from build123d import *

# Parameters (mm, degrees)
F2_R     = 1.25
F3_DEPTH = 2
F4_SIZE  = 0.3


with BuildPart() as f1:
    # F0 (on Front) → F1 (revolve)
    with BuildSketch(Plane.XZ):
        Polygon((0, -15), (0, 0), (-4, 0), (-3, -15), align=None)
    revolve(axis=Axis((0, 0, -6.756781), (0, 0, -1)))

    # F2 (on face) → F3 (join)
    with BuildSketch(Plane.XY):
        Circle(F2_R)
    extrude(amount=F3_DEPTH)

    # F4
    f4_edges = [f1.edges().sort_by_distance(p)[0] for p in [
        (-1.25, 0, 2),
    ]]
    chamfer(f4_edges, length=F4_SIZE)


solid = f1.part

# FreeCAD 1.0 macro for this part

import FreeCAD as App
import Part
import Sketcher
from FreeCAD import Vector
Q = App.Units.Quantity


def edges_at(feature, points):
    """Names of the edges that pass closest to the given points."""
    edges = feature.Shape.Edges
    near = lambda p: min(range(len(edges)), key=lambda i: edges[i].distToShape(Part.Vertex(*p))[0])
    return sorted({f"Edge{near(p) + 1}" for p in points})


def add_polygon(sketch, points):
    """Adds a closed chain of lines whose ends are joined by coincident constraints."""
    first, n = sketch.GeometryCount, len(points)
    for a, b in zip(points, points[1:] + points[:1]):
        sketch.addGeometry(Part.LineSegment(App.Vector(*a, 0), App.Vector(*b, 0)), False)
    for i in range(n):
        sketch.addConstraint(Sketcher.Constraint("Coincident", first + i, 2, first + (i + 1) % n, 1))

doc = App.newDocument("Part")
params = doc.addObject("Spreadsheet::Sheet", "Params")
for row, (alias, value) in enumerate([
    ("sketch1_width", "4 mm"),
    ("sketch1_width2", "3 mm"),
    ("sketch1_height", "15 mm"),
    ("revolution_angle", "360 deg"),
    ("sketch2_diameter", "2.5 mm"),
    ("pad1_length", "2 mm"),
    ("chamfer_size", "0.3 mm"),
], start=1):
    params.set(f"A{row}", alias)
    params.set(f"B{row}", "=" + value)
    params.setAlias(f"B{row}", alias)

body = doc.addObject("PartDesign::Body", "Body")

# Sketch on XZ plane
sketch1 = body.newObject("Sketcher::SketchObject", "Sketch")
sketch1.AttachmentSupport = (doc.getObject("XZ_Plane"), [""])
sketch1.MapMode = "FlatFace"
add_polygon(sketch1, [(0, -15), (0, 0), (-4, 0), (-3, -15)])  # lines 0-3
sketch1.addConstraint(Sketcher.Constraint("Vertical", 0))
sketch1.addConstraint(Sketcher.Constraint("Horizontal", 1))
sketch1.addConstraint(Sketcher.Constraint("Horizontal", 3))
sketch1.addConstraint(Sketcher.Constraint("Coincident", 0, 2, -1, 1))
sketch1.addConstraint(Sketcher.Constraint("DistanceX", 1, 2, 1, 1, Q("4 mm")))
sketch1.addConstraint(Sketcher.Constraint("DistanceX", 3, 1, 3, 2, Q("3 mm")))
sketch1.addConstraint(Sketcher.Constraint("DistanceY", 0, 1, 0, 2, Q("15 mm")))
sketch1.setExpression("Constraints[8]", "Params.sketch1_width")
sketch1.setExpression("Constraints[9]", "Params.sketch1_width2")
sketch1.setExpression("Constraints[10]", "Params.sketch1_height")
revolution = body.newObject("PartDesign::Revolution", "Revolution")
revolution.Profile = sketch1
revolution.ReferenceAxis = (sketch1, ["V_Axis"])
revolution.setExpression("Angle", "Params.revolution_angle")

# Sketch on XY plane
sketch2 = body.newObject("Sketcher::SketchObject", "Sketch001")
sketch2.AttachmentSupport = (doc.getObject("XY_Plane"), [""])
sketch2.MapMode = "FlatFace"
sketch2.addGeometry(Part.Circle(Vector(0, 0, 0), Vector(0, 0, 1), 1.25), False)
sketch2.addConstraint(Sketcher.Constraint("Coincident", 0, 3, -1, 1))
sketch2.addConstraint(Sketcher.Constraint("Diameter", 0, Q("2.5 mm")))
sketch2.setExpression("Constraints[1]", "Params.sketch2_diameter")
pad1 = body.newObject("PartDesign::Pad", "Pad")
pad1.Profile = sketch2
pad1.setExpression("Length", "Params.pad1_length")
doc.recompute()

chamfer = body.newObject("PartDesign::Chamfer", "Chamfer")
chamfer.Base = (pad1, edges_at(pad1, [(-1.25, 0, 2)]))
chamfer.setExpression("Size", "Params.chamfer_size")

doc.recompute()
